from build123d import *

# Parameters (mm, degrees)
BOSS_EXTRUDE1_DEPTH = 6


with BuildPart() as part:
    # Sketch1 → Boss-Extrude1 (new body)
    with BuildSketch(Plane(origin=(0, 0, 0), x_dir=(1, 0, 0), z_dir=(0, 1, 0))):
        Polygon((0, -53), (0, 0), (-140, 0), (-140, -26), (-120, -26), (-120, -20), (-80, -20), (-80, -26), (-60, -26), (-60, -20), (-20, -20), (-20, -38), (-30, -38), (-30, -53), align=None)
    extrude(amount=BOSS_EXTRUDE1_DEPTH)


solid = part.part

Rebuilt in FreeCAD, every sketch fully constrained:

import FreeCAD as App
import Part
import Sketcher

V = App.Vector


def add_polygon(sketch, points):
    """Adds a closed chain of lines whose ends are joined by coincident constraints."""
    first, n = sketch.GeometryCount, len(points)
    for a, b in zip(points, points[1:] + points[:1]):
        sketch.addGeometry(Part.LineSegment(App.Vector(*a, 0), App.Vector(*b, 0)), False)
    for i in range(n):
        sketch.addConstraint(Sketcher.Constraint("Coincident", first + i, 2, first + (i + 1) % n, 1))

doc = App.newDocument("Part")
body = doc.addObject("PartDesign::Body", "Body")

# Sketch on XZ plane
sketch1 = doc.addObject("Sketcher::SketchObject", "Sketch")
body.addObject(sketch1)
sketch1.AttachmentSupport = (doc.XZ_Plane, [""])
sketch1.MapMode = "FlatFace"
add_polygon(sketch1, [(0, 53), (0, 0), (-140, 0), (-140, 26), (-120, 26), (-120, 20), (-80, 20), (-80, 26), (-60, 26), (-60, 20), (-20, 20), (-20, 38), (-30, 38), (-30, 53)])  # lines 0-13
sketch1.addConstraint([
    Sketcher.Constraint("Vertical", 0),
    Sketcher.Constraint("Horizontal", 1),
    Sketcher.Constraint("Vertical", 2),
    Sketcher.Constraint("Horizontal", 3),
    Sketcher.Constraint("Vertical", 4),
    Sketcher.Constraint("Horizontal", 5),
    Sketcher.Constraint("Vertical", 6),
    Sketcher.Constraint("Horizontal", 7),
    Sketcher.Constraint("Vertical", 8),
    Sketcher.Constraint("Horizontal", 9),
    Sketcher.Constraint("Vertical", 10),
    Sketcher.Constraint("Horizontal", 11),
    Sketcher.Constraint("Vertical", 12),
    Sketcher.Constraint("Horizontal", 13),
    Sketcher.Constraint("Coincident", 0, 2, -1, 1),
    Sketcher.Constraint("Horizontal", 3, 2, 6, 2),
    Sketcher.Constraint("Horizontal", 5, 2, 8, 2),
    Sketcher.Constraint("Equal", 3, 7),
    Sketcher.Constraint("Equal", 5, 9),
    Sketcher.Constraint("DistanceX", 1, 2, 1, 1, 140.0),
    Sketcher.Constraint("DistanceX", 3, 1, 3, 2, 20.0),
    Sketcher.Constraint("DistanceX", 5, 1, 5, 2, 40.0),
    Sketcher.Constraint("DistanceX", 11, 2, 11, 1, 10.0),
    Sketcher.Constraint("DistanceY", 0, 2, 0, 1, 53.0),
    Sketcher.Constraint("DistanceY", 2, 1, 2, 2, 26.0),
    Sketcher.Constraint("DistanceY", 4, 2, 4, 1, 6.0),
    Sketcher.Constraint("DistanceY", 10, 1, 10, 2, 18.0),
])
pad1 = doc.addObject("PartDesign::Pad", "Pad")
body.addObject(pad1)
pad1.Profile = sketch1
pad1.Length = 6
pad1.Reversed = True

doc.recompute()
